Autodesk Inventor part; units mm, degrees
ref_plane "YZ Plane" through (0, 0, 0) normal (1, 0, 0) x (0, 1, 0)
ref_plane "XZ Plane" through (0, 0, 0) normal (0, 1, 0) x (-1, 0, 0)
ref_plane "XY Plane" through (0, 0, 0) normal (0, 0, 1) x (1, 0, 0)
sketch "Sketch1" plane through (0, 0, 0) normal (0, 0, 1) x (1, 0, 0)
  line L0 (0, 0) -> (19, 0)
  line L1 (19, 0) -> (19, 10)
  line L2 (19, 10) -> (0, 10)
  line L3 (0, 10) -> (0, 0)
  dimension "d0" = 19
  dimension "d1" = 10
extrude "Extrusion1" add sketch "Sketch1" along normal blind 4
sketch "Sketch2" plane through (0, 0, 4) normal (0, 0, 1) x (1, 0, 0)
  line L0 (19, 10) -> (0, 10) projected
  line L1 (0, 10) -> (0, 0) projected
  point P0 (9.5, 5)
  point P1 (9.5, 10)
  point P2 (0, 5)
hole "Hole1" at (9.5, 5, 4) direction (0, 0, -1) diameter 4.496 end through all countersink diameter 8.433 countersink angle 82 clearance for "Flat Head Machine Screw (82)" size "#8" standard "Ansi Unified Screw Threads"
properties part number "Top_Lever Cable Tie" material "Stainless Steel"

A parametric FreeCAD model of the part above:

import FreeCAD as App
import Part
import Sketcher
from FreeCAD import Vector

doc = App.newDocument("Part")
params = doc.addObject("Spreadsheet::Sheet", "Params")
for row, (alias, value) in enumerate([
    ("sketch1_width", "19 mm"),
    ("sketch1_height", "10 mm"),
    ("pad1_length", "4 mm"),
    ("hole_diameter", "4.496 mm"),
    ("hole_csink_diameter", "8.433 mm"),
], start=1):
    params.set(f"A{row}", alias)
    params.set(f"B{row}", "=" + value)
    params.setAlias(f"B{row}", alias)

body = doc.addObject("PartDesign::Body", "Body")

sketch1 = body.newObject("Sketcher::SketchObject", "Sketch")
sketch1.AttachmentSupport = (doc.getObject("XY_Plane"), [""])
sketch1.MapMode = "FlatFace"
sketch1.addGeometry(Part.LineSegment(Vector(0, 10, 0), Vector(0, 0, 0)), False)
sketch1.addGeometry(Part.LineSegment(Vector(0, 0, 0), Vector(19, 0, 0)), False)
sketch1.addGeometry(Part.LineSegment(Vector(19, 0, 0), Vector(19, 10, 0)), False)
sketch1.addGeometry(Part.LineSegment(Vector(19, 10, 0), Vector(0, 10, 0)), False)
sketch1.addConstraint(Sketcher.Constraint("Coincident", 0, 2, 1, 1))
sketch1.addConstraint(Sketcher.Constraint("Coincident", 1, 2, 2, 1))
sketch1.addConstraint(Sketcher.Constraint("Coincident", 2, 2, 3, 1))
sketch1.addConstraint(Sketcher.Constraint("Coincident", 3, 2, 0, 1))
sketch1.addConstraint(Sketcher.Constraint("Vertical", 0))
sketch1.addConstraint(Sketcher.Constraint("Horizontal", 1))
sketch1.addConstraint(Sketcher.Constraint("Vertical", 2))
sketch1.addConstraint(Sketcher.Constraint("Horizontal", 3))
sketch1.addConstraint(Sketcher.Constraint("Coincident", 0, 2, -1, 1))
sketch1.addConstraint(Sketcher.Constraint("DistanceX", 1, 1, 1, 2, 19.0))
sketch1.addConstraint(Sketcher.Constraint("DistanceY", 0, 2, 0, 1, 10.0))
sketch1.setExpression("Constraints[9]", "Params.sketch1_width")
sketch1.setExpression("Constraints[10]", "Params.sketch1_height")
pad1 = body.newObject("PartDesign::Pad", "Pad")
pad1.Profile = sketch1
pad1.setExpression("Length", "Params.pad1_length")

sketch2 = body.newObject("Sketcher::SketchObject", "Sketch001")
sketch2.AttachmentSupport = (doc.getObject("XY_Plane"), [""])
sketch2.MapMode = "FlatFace"
sketch2.AttachmentOffset = App.Placement(Vector(0, 0, 4), App.Rotation())
sketch2.addGeometry(Part.Circle(Vector(9.5, 5, 0), Vector(0, 0, 1), 2.2), False)
sketch2.addConstraint(Sketcher.Constraint("Diameter", 0, 4.496))
sketch2.addConstraint(Sketcher.Constraint("DistanceY", -1, 1, 0, 3, 5.0))
sketch2.addConstraint(Sketcher.Constraint("DistanceX", -1, 1, 0, 3, 9.5))
doc.recompute()
hole = body.newObject("PartDesign::Hole", "Hole")
hole.Profile = sketch2
hole.ThreadType = "None"
hole.setExpression("Diameter", "Params.hole_diameter")
hole.DepthType = "ThroughAll"
hole.HoleCutType = "Countersink"
hole.setExpression("HoleCutDiameter", "Params.hole_csink_diameter")
hole.HoleCutCountersinkAngle = 82

doc.recompute()
